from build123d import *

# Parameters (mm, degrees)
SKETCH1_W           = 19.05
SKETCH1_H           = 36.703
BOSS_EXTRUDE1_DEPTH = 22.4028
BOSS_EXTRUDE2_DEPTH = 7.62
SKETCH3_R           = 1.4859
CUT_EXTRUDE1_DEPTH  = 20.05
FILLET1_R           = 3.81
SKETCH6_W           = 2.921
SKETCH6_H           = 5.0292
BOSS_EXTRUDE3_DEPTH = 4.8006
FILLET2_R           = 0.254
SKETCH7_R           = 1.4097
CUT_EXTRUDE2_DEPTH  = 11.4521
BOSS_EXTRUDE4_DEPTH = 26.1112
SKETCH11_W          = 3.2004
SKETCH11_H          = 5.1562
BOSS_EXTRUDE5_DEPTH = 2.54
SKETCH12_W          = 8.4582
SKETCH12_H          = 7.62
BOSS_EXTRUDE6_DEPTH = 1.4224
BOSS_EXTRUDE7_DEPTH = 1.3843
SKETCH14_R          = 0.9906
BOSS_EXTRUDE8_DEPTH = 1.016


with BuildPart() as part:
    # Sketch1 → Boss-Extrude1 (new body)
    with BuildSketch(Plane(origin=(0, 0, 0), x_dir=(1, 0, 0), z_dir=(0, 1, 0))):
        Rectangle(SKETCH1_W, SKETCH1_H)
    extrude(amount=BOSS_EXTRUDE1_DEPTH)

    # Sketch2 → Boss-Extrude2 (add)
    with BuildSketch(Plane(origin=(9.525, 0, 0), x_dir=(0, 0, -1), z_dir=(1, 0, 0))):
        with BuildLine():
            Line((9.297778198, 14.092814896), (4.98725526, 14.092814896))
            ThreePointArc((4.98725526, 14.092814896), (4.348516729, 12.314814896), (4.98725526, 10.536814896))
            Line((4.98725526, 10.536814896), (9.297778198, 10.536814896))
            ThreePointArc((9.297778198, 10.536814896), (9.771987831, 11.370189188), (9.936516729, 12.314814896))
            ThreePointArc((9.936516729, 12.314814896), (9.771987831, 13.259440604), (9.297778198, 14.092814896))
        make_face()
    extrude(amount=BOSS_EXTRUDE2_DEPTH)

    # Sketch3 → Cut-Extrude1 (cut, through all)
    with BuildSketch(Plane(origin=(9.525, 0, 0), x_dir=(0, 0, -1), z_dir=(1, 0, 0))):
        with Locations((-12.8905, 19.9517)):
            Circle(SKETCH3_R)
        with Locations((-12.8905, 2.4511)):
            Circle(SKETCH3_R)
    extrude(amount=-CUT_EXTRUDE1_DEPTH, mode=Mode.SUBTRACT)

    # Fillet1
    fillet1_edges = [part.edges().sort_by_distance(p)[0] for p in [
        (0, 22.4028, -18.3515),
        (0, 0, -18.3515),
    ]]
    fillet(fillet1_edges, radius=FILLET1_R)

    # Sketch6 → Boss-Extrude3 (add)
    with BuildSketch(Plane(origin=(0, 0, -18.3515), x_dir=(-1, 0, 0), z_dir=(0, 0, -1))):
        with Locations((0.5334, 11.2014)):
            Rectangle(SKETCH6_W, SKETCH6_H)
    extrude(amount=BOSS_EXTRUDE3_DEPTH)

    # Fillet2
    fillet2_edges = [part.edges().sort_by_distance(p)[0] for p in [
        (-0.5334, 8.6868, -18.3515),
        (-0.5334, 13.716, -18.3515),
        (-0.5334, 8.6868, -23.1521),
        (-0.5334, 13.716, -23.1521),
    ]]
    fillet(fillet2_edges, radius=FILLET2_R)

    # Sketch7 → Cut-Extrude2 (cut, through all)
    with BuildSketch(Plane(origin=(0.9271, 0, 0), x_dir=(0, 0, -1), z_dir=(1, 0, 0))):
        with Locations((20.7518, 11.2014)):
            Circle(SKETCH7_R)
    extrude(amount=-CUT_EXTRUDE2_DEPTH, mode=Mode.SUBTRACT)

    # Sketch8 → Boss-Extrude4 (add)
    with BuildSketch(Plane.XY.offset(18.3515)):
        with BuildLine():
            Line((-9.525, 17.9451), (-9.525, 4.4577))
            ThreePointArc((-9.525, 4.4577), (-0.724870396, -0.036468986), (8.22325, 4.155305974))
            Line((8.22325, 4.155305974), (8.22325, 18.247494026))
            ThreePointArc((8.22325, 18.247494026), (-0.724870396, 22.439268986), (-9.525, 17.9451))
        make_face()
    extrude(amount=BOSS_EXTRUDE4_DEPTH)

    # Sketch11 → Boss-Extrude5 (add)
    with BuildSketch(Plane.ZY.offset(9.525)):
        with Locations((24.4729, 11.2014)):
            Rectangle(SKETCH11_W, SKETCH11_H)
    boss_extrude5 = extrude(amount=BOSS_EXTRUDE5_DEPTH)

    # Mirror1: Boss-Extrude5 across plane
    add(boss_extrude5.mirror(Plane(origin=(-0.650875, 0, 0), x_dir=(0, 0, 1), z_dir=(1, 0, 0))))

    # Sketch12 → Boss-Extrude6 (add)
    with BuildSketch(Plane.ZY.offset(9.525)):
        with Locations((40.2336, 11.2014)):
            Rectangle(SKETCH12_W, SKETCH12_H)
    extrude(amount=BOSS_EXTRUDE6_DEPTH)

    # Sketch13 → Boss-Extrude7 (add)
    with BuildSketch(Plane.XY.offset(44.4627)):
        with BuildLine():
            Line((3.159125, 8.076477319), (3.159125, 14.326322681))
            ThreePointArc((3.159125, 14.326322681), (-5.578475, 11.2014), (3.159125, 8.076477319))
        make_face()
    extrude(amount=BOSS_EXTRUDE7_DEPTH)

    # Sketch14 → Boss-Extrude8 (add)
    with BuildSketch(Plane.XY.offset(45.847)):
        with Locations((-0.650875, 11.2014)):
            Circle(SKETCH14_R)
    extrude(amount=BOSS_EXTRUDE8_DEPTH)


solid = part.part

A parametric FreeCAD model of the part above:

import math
import FreeCAD as App
import Part
import Sketcher
Q = App.Units.Quantity


def edges_at(feature, points):
    """Names of the edges that pass closest to the given points."""
    edges = feature.Shape.Edges
    near = lambda p: min(range(len(edges)), key=lambda i: edges[i].distToShape(Part.Vertex(*p))[0])
    return sorted({f"Edge{near(p) + 1}" for p in points})

doc = App.newDocument("Part")
body = doc.addObject("PartDesign::Body", "Body")

sketch1 = body.newObject("Sketcher::SketchObject", "Sketch")
sketch1.AttachmentSupport = (doc.getObject("XZ_Plane"), [""])
sketch1.MapMode = "FlatFace"
sketch1.addGeometry([
    Part.LineSegment(App.Vector(-10, -18, 0), App.Vector(-10, 18, 0)),
    Part.LineSegment(App.Vector(-10, 18, 0), App.Vector(10, 18, 0)),
    Part.LineSegment(App.Vector(10, 18, 0), App.Vector(10, -18, 0)),
    Part.LineSegment(App.Vector(10, -18, 0), App.Vector(-10, -18, 0)),
], False)
sketch1.addConstraint([
    Sketcher.Constraint("Coincident", 0, 2, 1, 1),
    Sketcher.Constraint("Coincident", 1, 2, 2, 1),
    Sketcher.Constraint("Coincident", 2, 2, 3, 1),
    Sketcher.Constraint("Coincident", 3, 2, 0, 1),
    Sketcher.Constraint("Vertical", 0),
    Sketcher.Constraint("Horizontal", 1),
    Sketcher.Constraint("Vertical", 2),
    Sketcher.Constraint("Horizontal", 3),
    Sketcher.Constraint("Symmetric", 0, 2, 2, 2, -1, 1),
    Sketcher.Constraint("DistanceX", 1, 1, 1, 2, Q("0.75 in")),
    Sketcher.Constraint("DistanceY", 0, 1, 0, 2, Q("1.445 in")),
])
pad1 = body.newObject("PartDesign::Pad", "Pad")
pad1.Profile = sketch1
pad1.Length = Q("0.882 in")
pad1.Reversed = True

sketch2 = body.newObject("Sketcher::SketchObject", "Sketch001")
sketch2.AttachmentSupport = (doc.getObject("YZ_Plane"), [""])
sketch2.MapMode = "FlatFace"
sketch2.AttachmentOffset = App.Placement(App.Vector(0, 0, 0.375 * 25.4), App.Rotation())
sketch2.addGeometry([
    Part.LineSegment(App.Vector(14.1, -9.3, 0), App.Vector(14.1, -5, 0)),
    Part.ArcOfCircle(Part.Circle(App.Vector(12.3, -7.1, 0), App.Vector(0, 0, 1), 2.8), math.radians(50), math.radians(130)),
    Part.LineSegment(App.Vector(10.5, -5, 0), App.Vector(10.5, -9.3, 0)),
    Part.ArcOfCircle(Part.Circle(App.Vector(12.3, -7.1, 0), App.Vector(0, 0, 1), 2.8), math.radians(-130), math.radians(-90)),
    Part.ArcOfCircle(Part.Circle(App.Vector(12.3, -7.1, 0), App.Vector(0, 0, 1), 2.8), math.radians(-90), math.radians(-50)),
], False)
sketch2.addConstraint([
    Sketcher.Constraint("Coincident", 0, 2, 1, 1),
    Sketcher.Constraint("Coincident", 1, 2, 2, 1),
    Sketcher.Constraint("Coincident", 2, 2, 3, 1),
    Sketcher.Constraint("Tangent", 3, 2, 4, 1),
    Sketcher.Constraint("Coincident", 4, 2, 0, 1),
    Sketcher.Constraint("Vertical", 0),
    Sketcher.Constraint("Vertical", 2),
    Sketcher.Constraint("Coincident", 3, 3, 1, 3),
    Sketcher.Constraint("Equal", 1, 3),
    Sketcher.Constraint("Equal", 3, 4),
    Sketcher.Constraint("Horizontal", 0, 2, 1, 2),
    Sketcher.Constraint("Vertical", 4, 3, 3, 2),
    Sketcher.Constraint("Radius", 1, Q("0.11 in")),
    Sketcher.Constraint("DistanceX", 1, 3, 0, 2, Q("0.07 in")),
    Sketcher.Constraint("DistanceY", 2, 2, -1, 1, Q("9.297778 mm")),
    Sketcher.Constraint("DistanceX", -1, 1, 1, 3, Q("12.314815 mm")),
])
pad2 = body.newObject("PartDesign::Pad", "Pad001")
pad2.Profile = sketch2
pad2.Length = Q("0.3 in")

sketch3 = body.newObject("Sketcher::SketchObject", "Sketch002")
sketch3.AttachmentSupport = (doc.getObject("YZ_Plane"), [""])
sketch3.MapMode = "FlatFace"
sketch3.AttachmentOffset = App.Placement(App.Vector(0, 0, 0.375 * 25.4), App.Rotation())
sketch3.addGeometry([
    Part.Circle(App.Vector(20, 12.9, 0), App.Vector(0, 0, 1), 1.5),
    Part.Circle(App.Vector(2.5, 12.9, 0), App.Vector(0, 0, 1), 1.5),
], False)
sketch3.addConstraint([
    Sketcher.Constraint("Equal", 0, 1),
    Sketcher.Constraint("Horizontal", 0, 3, 1, 3),
    Sketcher.Constraint("Diameter", 0, Q("0.117 in")),
    Sketcher.Constraint("DistanceX", 1, 3, 0, 3, Q("0.689 in")),
    Sketcher.Constraint("DistanceX", -1, 1, 0, 3, Q("0.7855 in")),
    Sketcher.Constraint("DistanceY", -1, 1, 0, 3, Q("0.5075 in")),
])
pocket1 = body.newObject("PartDesign::Pocket", "Pocket")
pocket1.Profile = sketch3
pocket1.Type = "ThroughAll"
doc.recompute()

fillet = body.newObject("PartDesign::Fillet", "Fillet")
fillet.Base = (pocket1, edges_at(pocket1, [(0, 22.403, -18.352), (0, 0, -18.352)]))
fillet.Radius = Q("0.15 in")

sketch4 = body.newObject("Sketcher::SketchObject", "Sketch003")
sketch4.AttachmentSupport = (doc.getObject("XY_Plane"), [""])
sketch4.MapMode = "FlatFace"
sketch4.AttachmentOffset = App.Placement(App.Vector(0, 0, -0.7225 * 25.4), App.Rotation())
sketch4.addGeometry([
    Part.LineSegment(App.Vector(0.9, 13.7, 0), App.Vector(0.9, 8.7, 0)),
    Part.LineSegment(App.Vector(0.9, 8.7, 0), App.Vector(-2, 8.7, 0)),
    Part.LineSegment(App.Vector(-2, 8.7, 0), App.Vector(-2, 13.7, 0)),
    Part.LineSegment(App.Vector(-2, 13.7, 0), App.Vector(0.9, 13.7, 0)),
], False)
sketch4.addConstraint([
    Sketcher.Constraint("Coincident", 0, 2, 1, 1),
    Sketcher.Constraint("Coincident", 1, 2, 2, 1),
    Sketcher.Constraint("Coincident", 2, 2, 3, 1),
    Sketcher.Constraint("Coincident", 3, 2, 0, 1),
    Sketcher.Constraint("Vertical", 0),
    Sketcher.Constraint("Horizontal", 1),
    Sketcher.Constraint("Vertical", 2),
    Sketcher.Constraint("Horizontal", 3),
    Sketcher.Constraint("DistanceX", 1, 2, 1, 1, Q("0.115 in")),
    Sketcher.Constraint("DistanceY", 0, 2, 0, 1, Q("0.198 in")),
    Sketcher.Constraint("DistanceY", -1, 1, 2, 2, Q("0.54 in")),
    Sketcher.Constraint("DistanceX", -1, 1, 0, 2, Q("0.0365 in")),
])
pad3 = body.newObject("PartDesign::Pad", "Pad002")
pad3.Profile = sketch4
pad3.Length = Q("0.189 in")
pad3.Reversed = True
doc.recompute()

fillet2 = body.newObject("PartDesign::Fillet", "Fillet001")
fillet2.Base = (pad3, edges_at(pad3, [
    (-0.533, 8.687, -18.352),
    (-0.533, 13.716, -18.352),
    (-0.533, 8.687, -23.152),
    (-0.533, 13.716, -23.152),
]))
fillet2.Radius = Q("0.01 in")

sketch5 = body.newObject("Sketcher::SketchObject", "Sketch004")
sketch5.AttachmentSupport = (doc.getObject("YZ_Plane"), [""])
sketch5.MapMode = "FlatFace"
sketch5.AttachmentOffset = App.Placement(App.Vector(0, 0, 0.0365 * 25.4), App.Rotation())
sketch5.addGeometry(Part.Circle(App.Vector(11.2, -20.8, 0), App.Vector(0, 0, 1), 1.4), False)
sketch5.addConstraint([
    Sketcher.Constraint("Diameter", 0, Q("0.111 in")),
    Sketcher.Constraint("DistanceX", -1, 1, 0, 3, Q("0.441 in")),
    Sketcher.Constraint("DistanceY", 0, 3, -1, 1, Q("0.817 in")),
])
pocket2 = body.newObject("PartDesign::Pocket", "Pocket001")
pocket2.Profile = sketch5
pocket2.Type = "ThroughAll"

sketch6 = body.newObject("Sketcher::SketchObject", "Sketch005")
sketch6.AttachmentSupport = (doc.getObject("XY_Plane"), [""])
sketch6.MapMode = "FlatFace"
sketch6.AttachmentOffset = App.Placement(App.Vector(0, 0, 0.7225 * 25.4), App.Rotation())
sketch6.addGeometry([
    Part.LineSegment(App.Vector(-10, 18, 0), App.Vector(-10, 4, 0)),
    Part.ArcOfCircle(Part.Circle(App.Vector(-1, 11, 0), App.Vector(0, 0, 1), 11), math.radians(-143), math.radians(-39)),
    Part.LineSegment(App.Vector(8, 4, 0), App.Vector(8, 18, 0)),
    Part.ArcOfCircle(Part.Circle(App.Vector(-1, 11, 0), App.Vector(0, 0, 1), 11), math.radians(39), math.radians(143)),
], False)
sketch6.addConstraint([
    Sketcher.Constraint("Coincident", 0, 2, 1, 1),
    Sketcher.Constraint("Coincident", 1, 2, 2, 1),
    Sketcher.Constraint("Coincident", 2, 2, 3, 1),
    Sketcher.Constraint("Coincident", 3, 2, 0, 1),
    Sketcher.Constraint("Vertical", 0),
    Sketcher.Constraint("Vertical", 2),
    Sketcher.Constraint("Coincident", 3, 3, 1, 3),
    Sketcher.Constraint("Equal", 1, 3),
    Sketcher.Constraint("Radius", 1, Q("0.4425 in")),
    Sketcher.Constraint("DistanceY", 0, 2, 0, 1, Q("0.531 in")),
    Sketcher.Constraint("DistanceX", 1, 3, -1, 1, Q("0.021 in")),
    Sketcher.Constraint("DistanceY", -1, 1, 1, 3, Q("0.441 in")),
    Sketcher.Constraint("DistanceY", 2, 1, 2, 2, Q("14.092188 mm")),
])
pad4 = body.newObject("PartDesign::Pad", "Pad003")
pad4.Profile = sketch6
pad4.Length = Q("1.028 in")

sketch7 = body.newObject("Sketcher::SketchObject", "Sketch006")
sketch7.AttachmentSupport = (doc.getObject("YZ_Plane"), [""])
sketch7.MapMode = "FlatFace"
sketch7.AttachmentOffset = App.Placement(App.Vector(0, 0, -0.375 * 25.4), App.Rotation())
sketch7.addGeometry([
    Part.LineSegment(App.Vector(13.8, 22.9, 0), App.Vector(8.6, 22.9, 0)),
    Part.LineSegment(App.Vector(8.6, 22.9, 0), App.Vector(8.6, 26.1, 0)),
    Part.LineSegment(App.Vector(8.6, 26.1, 0), App.Vector(13.8, 26.1, 0)),
    Part.LineSegment(App.Vector(13.8, 26.1, 0), App.Vector(13.8, 22.9, 0)),
], False)
sketch7.addConstraint([
    Sketcher.Constraint("Coincident", 0, 2, 1, 1),
    Sketcher.Constraint("Coincident", 1, 2, 2, 1),
    Sketcher.Constraint("Coincident", 2, 2, 3, 1),
    Sketcher.Constraint("Coincident", 3, 2, 0, 1),
    Sketcher.Constraint("Horizontal", 0),
    Sketcher.Constraint("Vertical", 1),
    Sketcher.Constraint("Horizontal", 2),
    Sketcher.Constraint("Vertical", 3),
    Sketcher.Constraint("DistanceX", 0, 2, 0, 1, Q("0.203 in")),
    Sketcher.Constraint("DistanceY", 1, 1, 1, 2, Q("0.126 in")),
    Sketcher.Constraint("DistanceX", -1, 1, 0, 2, Q("0.3395 in")),
    Sketcher.Constraint("DistanceY", -1, 1, 0, 2, Q("0.9005 in")),
])
pad5 = body.newObject("PartDesign::Pad", "Pad004")
pad5.Profile = sketch7
pad5.Length = Q("0.1 in")
pad5.Reversed = True
doc.recompute()

datumplane = body.newObject("PartDesign::Plane", "DatumPlane")
datumplane.AttachmentSupport = (doc.getObject("YZ_Plane"), [""])
datumplane.MapMode = "FlatFace"
datumplane.AttachmentOffset = App.Placement(App.Vector(0, 0, -0.650875), App.Rotation())
mirrored = body.newObject("PartDesign::Mirrored", "Mirrored")
mirrored.Originals = [pad5]
mirrored.MirrorPlane = (datumplane, [""])
body.Tip = mirrored

sketch8 = body.newObject("Sketcher::SketchObject", "Sketch007")
sketch8.AttachmentSupport = (doc.getObject("YZ_Plane"), [""])
sketch8.MapMode = "FlatFace"
sketch8.AttachmentOffset = App.Placement(App.Vector(0, 0, -0.375 * 25.4), App.Rotation())
sketch8.addGeometry([
    Part.LineSegment(App.Vector(15, 36, 0), App.Vector(7, 36, 0)),
    Part.LineSegment(App.Vector(7, 36, 0), App.Vector(7, 44, 0)),
    Part.LineSegment(App.Vector(7, 44, 0), App.Vector(15, 44, 0)),
    Part.LineSegment(App.Vector(15, 44, 0), App.Vector(15, 36, 0)),
], False)
sketch8.addConstraint([
    Sketcher.Constraint("Coincident", 0, 2, 1, 1),
    Sketcher.Constraint("Coincident", 1, 2, 2, 1),
    Sketcher.Constraint("Coincident", 2, 2, 3, 1),
    Sketcher.Constraint("Coincident", 3, 2, 0, 1),
    Sketcher.Constraint("Horizontal", 0),
    Sketcher.Constraint("Vertical", 1),
    Sketcher.Constraint("Horizontal", 2),
    Sketcher.Constraint("Vertical", 3),
    Sketcher.Constraint("DistanceX", 0, 2, 0, 1, Q("0.3 in")),
    Sketcher.Constraint("DistanceY", 1, 1, 1, 2, Q("0.333 in")),
    Sketcher.Constraint("DistanceX", -1, 1, 0, 2, Q("0.291 in")),
    Sketcher.Constraint("DistanceY", -1, 1, 0, 2, Q("1.4175 in")),
])
pad6 = body.newObject("PartDesign::Pad", "Pad005")
pad6.Profile = sketch8
pad6.Length = Q("0.056 in")
pad6.Reversed = True

sketch9 = body.newObject("Sketcher::SketchObject", "Sketch008")
sketch9.AttachmentSupport = (doc.getObject("XY_Plane"), [""])
sketch9.MapMode = "FlatFace"
sketch9.AttachmentOffset = App.Placement(App.Vector(0, 0, 1.7505 * 25.4), App.Rotation())
sketch9.addGeometry([
    Part.LineSegment(App.Vector(3.2, 8.1, 0), App.Vector(3.2, 14.3, 0)),
    Part.ArcOfCircle(Part.Circle(App.Vector(-0.7, 11.2, 0), App.Vector(0, 0, 1), 4.9), math.radians(39), math.radians(321)),
], False)
sketch9.addConstraint([
    Sketcher.Constraint("Coincident", 0, 1, 1, 2),
    Sketcher.Constraint("Coincident", 1, 1, 0, 2),
    Sketcher.Constraint("Vertical", 0),
    Sketcher.Constraint("Radius", 1, Q("0.194 in")),
    Sketcher.Constraint("DistanceX", 1, 3, 0, 1, Q("0.15 in")),
    Sketcher.Constraint("DistanceY", -1, 1, 1, 3, Q("0.441 in")),
    Sketcher.Constraint("DistanceX", 1, 3, -1, 1, Q("0.650875 mm")),
])
pad7 = body.newObject("PartDesign::Pad", "Pad006")
pad7.Profile = sketch9
pad7.Length = Q("0.0545 in")

sketch10 = body.newObject("Sketcher::SketchObject", "Sketch009")
sketch10.AttachmentSupport = (doc.getObject("XY_Plane"), [""])
sketch10.MapMode = "FlatFace"
sketch10.AttachmentOffset = App.Placement(App.Vector(0, 0, 1.805 * 25.4), App.Rotation())
sketch10.addGeometry(Part.Circle(App.Vector(-0.7, 11.2, 0), App.Vector(0, 0, 1), 1), False)
sketch10.addConstraint([
    Sketcher.Constraint("Diameter", 0, Q("0.078 in")),
    Sketcher.Constraint("DistanceY", -1, 1, 0, 3, Q("0.441 in")),
    Sketcher.Constraint("DistanceX", 0, 3, -1, 1, Q("0.650875 mm")),
])
pad8 = body.newObject("PartDesign::Pad", "Pad007")
pad8.Profile = sketch10
pad8.Length = Q("0.04 in")

doc.recompute()
